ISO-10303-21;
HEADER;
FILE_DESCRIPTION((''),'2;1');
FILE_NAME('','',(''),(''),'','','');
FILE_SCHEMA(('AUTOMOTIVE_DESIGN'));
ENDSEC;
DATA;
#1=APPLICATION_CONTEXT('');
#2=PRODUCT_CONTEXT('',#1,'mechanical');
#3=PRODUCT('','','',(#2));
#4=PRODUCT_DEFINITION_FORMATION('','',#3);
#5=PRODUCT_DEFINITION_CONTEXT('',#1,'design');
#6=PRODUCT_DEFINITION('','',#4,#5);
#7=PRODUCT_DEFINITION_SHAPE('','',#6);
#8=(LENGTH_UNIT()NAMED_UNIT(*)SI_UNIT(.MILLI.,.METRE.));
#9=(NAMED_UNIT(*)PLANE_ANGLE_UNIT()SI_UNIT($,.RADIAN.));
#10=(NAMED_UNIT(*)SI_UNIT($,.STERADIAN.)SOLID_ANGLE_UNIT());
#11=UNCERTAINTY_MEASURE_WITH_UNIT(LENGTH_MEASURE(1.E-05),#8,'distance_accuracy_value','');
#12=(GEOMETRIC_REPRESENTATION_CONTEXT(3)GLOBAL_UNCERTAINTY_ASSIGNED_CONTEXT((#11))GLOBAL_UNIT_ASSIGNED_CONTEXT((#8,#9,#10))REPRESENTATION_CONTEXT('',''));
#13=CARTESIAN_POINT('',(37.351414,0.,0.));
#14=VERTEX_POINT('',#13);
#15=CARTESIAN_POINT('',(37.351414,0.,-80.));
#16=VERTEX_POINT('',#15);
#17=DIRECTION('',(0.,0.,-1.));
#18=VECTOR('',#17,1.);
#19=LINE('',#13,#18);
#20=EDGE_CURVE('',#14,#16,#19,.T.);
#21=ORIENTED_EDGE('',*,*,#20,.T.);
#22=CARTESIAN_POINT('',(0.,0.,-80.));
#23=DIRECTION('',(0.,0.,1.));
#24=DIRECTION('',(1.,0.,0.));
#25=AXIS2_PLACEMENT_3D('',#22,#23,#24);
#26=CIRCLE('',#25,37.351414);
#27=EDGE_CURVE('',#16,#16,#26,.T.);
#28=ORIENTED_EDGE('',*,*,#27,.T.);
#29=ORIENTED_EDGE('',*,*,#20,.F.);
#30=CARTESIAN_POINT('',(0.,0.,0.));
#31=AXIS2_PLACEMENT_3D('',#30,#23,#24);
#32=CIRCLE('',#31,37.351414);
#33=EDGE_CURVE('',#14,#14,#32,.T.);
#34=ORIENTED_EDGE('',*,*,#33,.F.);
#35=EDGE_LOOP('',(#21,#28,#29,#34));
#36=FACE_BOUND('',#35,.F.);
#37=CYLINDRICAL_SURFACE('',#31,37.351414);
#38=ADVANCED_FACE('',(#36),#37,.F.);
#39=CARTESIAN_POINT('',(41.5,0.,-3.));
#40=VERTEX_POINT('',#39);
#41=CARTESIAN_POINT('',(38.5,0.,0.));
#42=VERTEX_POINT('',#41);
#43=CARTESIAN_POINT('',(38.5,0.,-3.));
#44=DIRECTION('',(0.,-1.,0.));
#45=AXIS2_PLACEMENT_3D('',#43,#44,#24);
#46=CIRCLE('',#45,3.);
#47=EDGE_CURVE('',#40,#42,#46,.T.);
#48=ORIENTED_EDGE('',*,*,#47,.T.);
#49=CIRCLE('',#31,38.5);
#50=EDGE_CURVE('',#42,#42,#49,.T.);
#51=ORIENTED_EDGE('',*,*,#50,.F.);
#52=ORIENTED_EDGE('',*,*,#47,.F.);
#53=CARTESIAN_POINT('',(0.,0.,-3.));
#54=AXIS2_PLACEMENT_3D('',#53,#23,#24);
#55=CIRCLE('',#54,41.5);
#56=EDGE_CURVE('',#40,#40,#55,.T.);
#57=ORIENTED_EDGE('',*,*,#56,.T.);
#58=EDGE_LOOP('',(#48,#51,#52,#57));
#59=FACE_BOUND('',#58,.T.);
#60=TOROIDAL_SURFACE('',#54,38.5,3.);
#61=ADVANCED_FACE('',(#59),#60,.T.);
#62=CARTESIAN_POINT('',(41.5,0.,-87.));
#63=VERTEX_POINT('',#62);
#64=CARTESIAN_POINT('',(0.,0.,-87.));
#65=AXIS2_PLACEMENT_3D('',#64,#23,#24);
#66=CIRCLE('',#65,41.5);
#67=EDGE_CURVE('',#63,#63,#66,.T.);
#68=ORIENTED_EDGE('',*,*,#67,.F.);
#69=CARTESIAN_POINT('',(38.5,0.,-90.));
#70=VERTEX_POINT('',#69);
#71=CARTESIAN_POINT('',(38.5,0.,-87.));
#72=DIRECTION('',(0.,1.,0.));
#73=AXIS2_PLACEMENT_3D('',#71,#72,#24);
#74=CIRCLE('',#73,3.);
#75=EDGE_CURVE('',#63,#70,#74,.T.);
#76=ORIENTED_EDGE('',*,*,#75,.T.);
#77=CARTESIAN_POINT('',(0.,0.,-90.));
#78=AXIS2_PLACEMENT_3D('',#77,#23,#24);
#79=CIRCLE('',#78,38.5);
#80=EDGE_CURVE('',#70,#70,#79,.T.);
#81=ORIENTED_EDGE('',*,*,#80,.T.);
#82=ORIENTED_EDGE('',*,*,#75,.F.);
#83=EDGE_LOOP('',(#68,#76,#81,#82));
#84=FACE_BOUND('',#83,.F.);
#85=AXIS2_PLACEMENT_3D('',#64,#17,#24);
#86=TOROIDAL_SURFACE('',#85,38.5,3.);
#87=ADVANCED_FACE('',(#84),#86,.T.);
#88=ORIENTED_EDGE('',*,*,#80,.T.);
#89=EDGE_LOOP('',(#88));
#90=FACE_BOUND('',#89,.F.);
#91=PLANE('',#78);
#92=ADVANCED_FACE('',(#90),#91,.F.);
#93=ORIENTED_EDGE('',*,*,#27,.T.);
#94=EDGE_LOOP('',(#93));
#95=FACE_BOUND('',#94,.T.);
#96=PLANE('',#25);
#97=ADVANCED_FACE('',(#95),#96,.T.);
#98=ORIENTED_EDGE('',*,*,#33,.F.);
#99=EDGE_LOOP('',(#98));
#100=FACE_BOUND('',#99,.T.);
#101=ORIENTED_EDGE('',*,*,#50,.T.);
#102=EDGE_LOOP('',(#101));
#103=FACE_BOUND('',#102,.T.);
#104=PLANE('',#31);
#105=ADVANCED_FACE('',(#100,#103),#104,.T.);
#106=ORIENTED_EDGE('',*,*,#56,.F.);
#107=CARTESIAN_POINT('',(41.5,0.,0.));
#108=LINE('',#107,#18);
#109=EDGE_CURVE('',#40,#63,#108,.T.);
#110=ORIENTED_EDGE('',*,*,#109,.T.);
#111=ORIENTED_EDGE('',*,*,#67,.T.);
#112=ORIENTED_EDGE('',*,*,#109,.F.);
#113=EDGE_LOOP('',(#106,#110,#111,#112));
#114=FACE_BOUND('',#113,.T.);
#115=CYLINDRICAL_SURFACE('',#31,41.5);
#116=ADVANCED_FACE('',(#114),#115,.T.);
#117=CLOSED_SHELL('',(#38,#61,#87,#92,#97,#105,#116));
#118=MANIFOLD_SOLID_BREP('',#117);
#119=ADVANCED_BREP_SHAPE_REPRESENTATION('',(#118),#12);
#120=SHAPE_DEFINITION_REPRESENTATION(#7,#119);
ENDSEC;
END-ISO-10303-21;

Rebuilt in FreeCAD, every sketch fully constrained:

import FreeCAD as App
import Part
import Sketcher

V = App.Vector


def edges_at(feature, points):
    """Names of the edges that pass closest to the given points."""
    edges = feature.Shape.Edges
    near = lambda p: min(range(len(edges)), key=lambda i: edges[i].distToShape(Part.Vertex(*p))[0])
    return sorted({f"Edge{near(p) + 1}" for p in points})

doc = App.newDocument("Part")
body = doc.addObject("PartDesign::Body", "Body")

# Sketch on XY plane
sketch1 = doc.addObject("Sketcher::SketchObject", "Sketch")
body.addObject(sketch1)
sketch1.AttachmentSupport = (doc.XY_Plane, [""])
sketch1.MapMode = "FlatFace"
sketch1.addGeometry(Part.Circle(V(0, 0, 0), V(0, 0, 1), 41.5), False)
sketch1.addConstraint([
    Sketcher.Constraint("Coincident", 0, 3, -1, 1),
    Sketcher.Constraint("Diameter", 0, 83.0),
])
pad1 = doc.addObject("PartDesign::Pad", "Pad")
body.addObject(pad1)
pad1.Profile = sketch1
pad1.Length = 90
pad1.Reversed = True

# Sketch on XY plane
sketch2 = doc.addObject("Sketcher::SketchObject", "Sketch001")
body.addObject(sketch2)
sketch2.AttachmentSupport = (doc.XY_Plane, [""])
sketch2.MapMode = "FlatFace"
sketch2.addGeometry(Part.Circle(V(0, 0, 0), V(0, 0, 1), 37.351414), False)
sketch2.addConstraint([
    Sketcher.Constraint("Coincident", 0, 3, -1, 1),
    Sketcher.Constraint("Diameter", 0, 74.702828),
])
pocket1 = doc.addObject("PartDesign::Pocket", "Pocket")
body.addObject(pocket1)
pocket1.Profile = sketch2
pocket1.Length = 80
doc.recompute()

fillet = doc.addObject("PartDesign::Fillet", "Fillet")
body.addObject(fillet)
fillet.Base = (pocket1, edges_at(pocket1, [(41.5, 0, -45), (-41.5, 0, 0), (-41.5, 0, -90)]))
fillet.Radius = 3

doc.recompute()
